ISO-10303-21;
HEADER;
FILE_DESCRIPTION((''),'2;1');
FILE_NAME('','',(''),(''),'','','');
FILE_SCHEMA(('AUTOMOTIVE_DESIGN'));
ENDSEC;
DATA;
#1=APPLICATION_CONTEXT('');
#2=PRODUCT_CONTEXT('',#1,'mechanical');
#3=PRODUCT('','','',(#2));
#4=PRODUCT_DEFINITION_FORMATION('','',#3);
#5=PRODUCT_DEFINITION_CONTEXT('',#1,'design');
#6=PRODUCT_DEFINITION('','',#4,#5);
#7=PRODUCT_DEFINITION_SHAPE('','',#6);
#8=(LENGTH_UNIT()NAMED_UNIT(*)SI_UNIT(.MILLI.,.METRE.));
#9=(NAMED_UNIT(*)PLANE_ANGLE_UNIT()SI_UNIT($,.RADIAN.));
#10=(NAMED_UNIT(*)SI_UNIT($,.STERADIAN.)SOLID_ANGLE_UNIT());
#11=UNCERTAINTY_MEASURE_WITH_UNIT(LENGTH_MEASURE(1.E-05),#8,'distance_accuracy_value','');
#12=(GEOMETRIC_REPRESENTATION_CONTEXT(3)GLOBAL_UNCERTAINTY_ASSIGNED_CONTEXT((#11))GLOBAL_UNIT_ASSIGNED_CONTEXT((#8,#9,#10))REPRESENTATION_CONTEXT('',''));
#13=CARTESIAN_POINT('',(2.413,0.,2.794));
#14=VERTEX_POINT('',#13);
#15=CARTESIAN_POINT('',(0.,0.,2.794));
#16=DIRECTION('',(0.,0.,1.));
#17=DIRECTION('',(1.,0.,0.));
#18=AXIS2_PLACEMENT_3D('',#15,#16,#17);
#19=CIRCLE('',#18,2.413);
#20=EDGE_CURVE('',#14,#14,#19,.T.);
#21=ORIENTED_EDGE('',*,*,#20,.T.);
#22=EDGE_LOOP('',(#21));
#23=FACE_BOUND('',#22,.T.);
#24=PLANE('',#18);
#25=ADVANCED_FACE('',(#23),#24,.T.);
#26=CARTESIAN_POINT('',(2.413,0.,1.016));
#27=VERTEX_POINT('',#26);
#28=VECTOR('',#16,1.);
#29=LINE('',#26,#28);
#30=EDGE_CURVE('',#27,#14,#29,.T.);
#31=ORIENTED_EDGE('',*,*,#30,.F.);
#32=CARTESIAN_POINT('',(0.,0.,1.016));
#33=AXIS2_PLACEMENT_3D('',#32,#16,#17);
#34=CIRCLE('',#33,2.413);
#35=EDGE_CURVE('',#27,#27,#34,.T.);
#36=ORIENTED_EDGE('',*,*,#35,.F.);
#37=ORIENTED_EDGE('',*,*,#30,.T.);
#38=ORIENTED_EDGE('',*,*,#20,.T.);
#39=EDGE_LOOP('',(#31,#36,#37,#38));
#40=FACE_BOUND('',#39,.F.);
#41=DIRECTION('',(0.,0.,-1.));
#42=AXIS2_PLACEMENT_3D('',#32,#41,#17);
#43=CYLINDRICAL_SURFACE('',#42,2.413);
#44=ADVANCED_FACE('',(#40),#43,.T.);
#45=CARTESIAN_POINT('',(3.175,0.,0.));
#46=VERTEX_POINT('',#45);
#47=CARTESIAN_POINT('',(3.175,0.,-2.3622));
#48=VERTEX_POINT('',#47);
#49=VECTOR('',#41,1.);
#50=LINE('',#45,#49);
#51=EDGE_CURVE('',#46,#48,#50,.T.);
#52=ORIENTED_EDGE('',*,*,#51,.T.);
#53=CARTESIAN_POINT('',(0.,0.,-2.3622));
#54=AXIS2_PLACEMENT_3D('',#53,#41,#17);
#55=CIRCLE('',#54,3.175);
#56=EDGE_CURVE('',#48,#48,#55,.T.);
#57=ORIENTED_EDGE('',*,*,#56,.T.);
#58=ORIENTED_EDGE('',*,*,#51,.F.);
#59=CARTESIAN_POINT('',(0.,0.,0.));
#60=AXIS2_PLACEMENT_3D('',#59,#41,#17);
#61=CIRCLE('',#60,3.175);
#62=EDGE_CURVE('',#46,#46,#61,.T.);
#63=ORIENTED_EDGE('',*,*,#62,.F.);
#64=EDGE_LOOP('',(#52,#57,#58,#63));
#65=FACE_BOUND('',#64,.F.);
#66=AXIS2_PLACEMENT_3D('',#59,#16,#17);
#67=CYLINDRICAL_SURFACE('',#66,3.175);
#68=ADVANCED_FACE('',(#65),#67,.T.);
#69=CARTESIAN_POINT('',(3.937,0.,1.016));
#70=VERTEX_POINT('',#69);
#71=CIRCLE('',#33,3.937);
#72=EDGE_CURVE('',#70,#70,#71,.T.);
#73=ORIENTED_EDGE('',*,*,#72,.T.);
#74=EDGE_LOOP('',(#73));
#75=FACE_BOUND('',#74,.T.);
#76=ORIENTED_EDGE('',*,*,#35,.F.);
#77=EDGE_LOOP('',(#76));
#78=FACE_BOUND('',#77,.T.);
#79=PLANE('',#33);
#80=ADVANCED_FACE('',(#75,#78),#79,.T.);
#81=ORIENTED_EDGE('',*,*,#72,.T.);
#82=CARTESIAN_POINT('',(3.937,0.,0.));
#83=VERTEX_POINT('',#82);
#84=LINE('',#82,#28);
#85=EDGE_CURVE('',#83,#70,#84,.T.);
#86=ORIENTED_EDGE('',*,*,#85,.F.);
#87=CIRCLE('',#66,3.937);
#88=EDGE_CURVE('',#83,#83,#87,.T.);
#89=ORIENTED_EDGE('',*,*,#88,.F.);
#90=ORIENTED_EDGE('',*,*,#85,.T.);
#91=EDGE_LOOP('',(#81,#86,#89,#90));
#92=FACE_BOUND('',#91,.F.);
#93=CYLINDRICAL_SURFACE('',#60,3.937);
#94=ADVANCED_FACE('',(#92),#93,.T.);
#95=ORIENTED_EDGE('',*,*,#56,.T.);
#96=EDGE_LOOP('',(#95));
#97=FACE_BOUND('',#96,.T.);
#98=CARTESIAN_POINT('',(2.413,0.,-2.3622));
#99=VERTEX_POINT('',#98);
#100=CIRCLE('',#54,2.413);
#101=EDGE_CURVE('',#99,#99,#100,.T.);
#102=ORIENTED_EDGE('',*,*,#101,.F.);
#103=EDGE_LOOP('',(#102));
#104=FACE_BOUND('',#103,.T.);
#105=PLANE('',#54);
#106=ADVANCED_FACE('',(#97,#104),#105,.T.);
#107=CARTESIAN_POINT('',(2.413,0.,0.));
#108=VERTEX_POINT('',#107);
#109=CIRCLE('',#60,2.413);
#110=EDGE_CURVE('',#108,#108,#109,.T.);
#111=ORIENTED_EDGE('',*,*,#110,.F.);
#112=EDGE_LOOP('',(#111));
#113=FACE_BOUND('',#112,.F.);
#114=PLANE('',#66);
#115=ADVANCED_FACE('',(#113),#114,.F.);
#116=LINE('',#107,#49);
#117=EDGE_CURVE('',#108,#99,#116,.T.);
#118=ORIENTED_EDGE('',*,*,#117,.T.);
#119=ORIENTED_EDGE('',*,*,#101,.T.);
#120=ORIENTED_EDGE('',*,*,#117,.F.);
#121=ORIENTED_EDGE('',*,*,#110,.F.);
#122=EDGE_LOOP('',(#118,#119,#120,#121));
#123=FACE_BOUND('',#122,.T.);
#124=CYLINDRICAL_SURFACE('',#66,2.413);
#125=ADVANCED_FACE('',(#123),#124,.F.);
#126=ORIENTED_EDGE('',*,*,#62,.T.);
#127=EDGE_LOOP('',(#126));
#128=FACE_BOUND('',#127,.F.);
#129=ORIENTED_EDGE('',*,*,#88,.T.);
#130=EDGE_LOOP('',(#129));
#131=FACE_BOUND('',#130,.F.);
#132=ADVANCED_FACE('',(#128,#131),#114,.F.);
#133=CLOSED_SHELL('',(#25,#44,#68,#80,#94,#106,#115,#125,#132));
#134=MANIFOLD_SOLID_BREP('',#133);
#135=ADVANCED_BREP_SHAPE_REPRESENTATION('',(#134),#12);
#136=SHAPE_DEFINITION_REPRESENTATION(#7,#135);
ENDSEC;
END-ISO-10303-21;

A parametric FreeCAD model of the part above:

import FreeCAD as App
import Part
import Sketcher

V = App.Vector
Q = App.Units.Quantity

doc = App.newDocument("Part")
body = doc.addObject("PartDesign::Body", "Body")

# Sketch on XY plane
sketch1 = body.newObject("Sketcher::SketchObject", "Sketch")
sketch1.AttachmentSupport = (doc.getObject("XY_Plane"), [""])
sketch1.MapMode = "FlatFace"
sketch1.addGeometry(Part.Circle(V(0, 0, 0), V(0, 0, 1), 3.937), False)
sketch1.addConstraint(Sketcher.Constraint("Coincident", 0, 3, -1, 1))
sketch1.addConstraint(Sketcher.Constraint("Diameter", 0, Q("0.31 in")))
pad1 = body.newObject("PartDesign::Pad", "Pad")
pad1.Profile = sketch1
pad1.Length = Q("0.04 in")

# Sketch on XY plane
sketch2 = body.newObject("Sketcher::SketchObject", "Sketch001")
sketch2.AttachmentSupport = (doc.getObject("XY_Plane"), [""])
sketch2.MapMode = "FlatFace"
sketch2.AttachmentOffset = App.Placement(V(0, 0, 0.04 * 25.4), App.Rotation())
sketch2.addGeometry(Part.Circle(V(0, 0, 0), V(0, 0, 1), 2.413), False)
sketch2.addConstraint(Sketcher.Constraint("Coincident", 0, 3, -1, 1))
sketch2.addConstraint(Sketcher.Constraint("Diameter", 0, Q("0.19 in")))
pad2 = body.newObject("PartDesign::Pad", "Pad001")
pad2.Profile = sketch2
pad2.Length = Q("0.07 in")

# Sketch on XY plane
sketch3 = body.newObject("Sketcher::SketchObject", "Sketch002")
sketch3.AttachmentSupport = (doc.getObject("XY_Plane"), [""])
sketch3.MapMode = "FlatFace"
sketch3.addGeometry(Part.Circle(V(0, 0, 0), V(0, 0, 1), 3.175), False)
sketch3.addGeometry(Part.Circle(V(0, 0, 0), V(0, 0, 1), 2.413), False)
sketch3.addConstraint(Sketcher.Constraint("Coincident", 0, 3, -1, 1))
sketch3.addConstraint(Sketcher.Constraint("Coincident", 1, 3, -1, 1))
sketch3.addConstraint(Sketcher.Constraint("Diameter", 0, Q("0.25 in")))
sketch3.addConstraint(Sketcher.Constraint("Diameter", 1, Q("0.19 in")))
pad3 = body.newObject("PartDesign::Pad", "Pad002")
pad3.Profile = sketch3
pad3.Length = Q("0.093 in")
pad3.Reversed = True

doc.recompute()
